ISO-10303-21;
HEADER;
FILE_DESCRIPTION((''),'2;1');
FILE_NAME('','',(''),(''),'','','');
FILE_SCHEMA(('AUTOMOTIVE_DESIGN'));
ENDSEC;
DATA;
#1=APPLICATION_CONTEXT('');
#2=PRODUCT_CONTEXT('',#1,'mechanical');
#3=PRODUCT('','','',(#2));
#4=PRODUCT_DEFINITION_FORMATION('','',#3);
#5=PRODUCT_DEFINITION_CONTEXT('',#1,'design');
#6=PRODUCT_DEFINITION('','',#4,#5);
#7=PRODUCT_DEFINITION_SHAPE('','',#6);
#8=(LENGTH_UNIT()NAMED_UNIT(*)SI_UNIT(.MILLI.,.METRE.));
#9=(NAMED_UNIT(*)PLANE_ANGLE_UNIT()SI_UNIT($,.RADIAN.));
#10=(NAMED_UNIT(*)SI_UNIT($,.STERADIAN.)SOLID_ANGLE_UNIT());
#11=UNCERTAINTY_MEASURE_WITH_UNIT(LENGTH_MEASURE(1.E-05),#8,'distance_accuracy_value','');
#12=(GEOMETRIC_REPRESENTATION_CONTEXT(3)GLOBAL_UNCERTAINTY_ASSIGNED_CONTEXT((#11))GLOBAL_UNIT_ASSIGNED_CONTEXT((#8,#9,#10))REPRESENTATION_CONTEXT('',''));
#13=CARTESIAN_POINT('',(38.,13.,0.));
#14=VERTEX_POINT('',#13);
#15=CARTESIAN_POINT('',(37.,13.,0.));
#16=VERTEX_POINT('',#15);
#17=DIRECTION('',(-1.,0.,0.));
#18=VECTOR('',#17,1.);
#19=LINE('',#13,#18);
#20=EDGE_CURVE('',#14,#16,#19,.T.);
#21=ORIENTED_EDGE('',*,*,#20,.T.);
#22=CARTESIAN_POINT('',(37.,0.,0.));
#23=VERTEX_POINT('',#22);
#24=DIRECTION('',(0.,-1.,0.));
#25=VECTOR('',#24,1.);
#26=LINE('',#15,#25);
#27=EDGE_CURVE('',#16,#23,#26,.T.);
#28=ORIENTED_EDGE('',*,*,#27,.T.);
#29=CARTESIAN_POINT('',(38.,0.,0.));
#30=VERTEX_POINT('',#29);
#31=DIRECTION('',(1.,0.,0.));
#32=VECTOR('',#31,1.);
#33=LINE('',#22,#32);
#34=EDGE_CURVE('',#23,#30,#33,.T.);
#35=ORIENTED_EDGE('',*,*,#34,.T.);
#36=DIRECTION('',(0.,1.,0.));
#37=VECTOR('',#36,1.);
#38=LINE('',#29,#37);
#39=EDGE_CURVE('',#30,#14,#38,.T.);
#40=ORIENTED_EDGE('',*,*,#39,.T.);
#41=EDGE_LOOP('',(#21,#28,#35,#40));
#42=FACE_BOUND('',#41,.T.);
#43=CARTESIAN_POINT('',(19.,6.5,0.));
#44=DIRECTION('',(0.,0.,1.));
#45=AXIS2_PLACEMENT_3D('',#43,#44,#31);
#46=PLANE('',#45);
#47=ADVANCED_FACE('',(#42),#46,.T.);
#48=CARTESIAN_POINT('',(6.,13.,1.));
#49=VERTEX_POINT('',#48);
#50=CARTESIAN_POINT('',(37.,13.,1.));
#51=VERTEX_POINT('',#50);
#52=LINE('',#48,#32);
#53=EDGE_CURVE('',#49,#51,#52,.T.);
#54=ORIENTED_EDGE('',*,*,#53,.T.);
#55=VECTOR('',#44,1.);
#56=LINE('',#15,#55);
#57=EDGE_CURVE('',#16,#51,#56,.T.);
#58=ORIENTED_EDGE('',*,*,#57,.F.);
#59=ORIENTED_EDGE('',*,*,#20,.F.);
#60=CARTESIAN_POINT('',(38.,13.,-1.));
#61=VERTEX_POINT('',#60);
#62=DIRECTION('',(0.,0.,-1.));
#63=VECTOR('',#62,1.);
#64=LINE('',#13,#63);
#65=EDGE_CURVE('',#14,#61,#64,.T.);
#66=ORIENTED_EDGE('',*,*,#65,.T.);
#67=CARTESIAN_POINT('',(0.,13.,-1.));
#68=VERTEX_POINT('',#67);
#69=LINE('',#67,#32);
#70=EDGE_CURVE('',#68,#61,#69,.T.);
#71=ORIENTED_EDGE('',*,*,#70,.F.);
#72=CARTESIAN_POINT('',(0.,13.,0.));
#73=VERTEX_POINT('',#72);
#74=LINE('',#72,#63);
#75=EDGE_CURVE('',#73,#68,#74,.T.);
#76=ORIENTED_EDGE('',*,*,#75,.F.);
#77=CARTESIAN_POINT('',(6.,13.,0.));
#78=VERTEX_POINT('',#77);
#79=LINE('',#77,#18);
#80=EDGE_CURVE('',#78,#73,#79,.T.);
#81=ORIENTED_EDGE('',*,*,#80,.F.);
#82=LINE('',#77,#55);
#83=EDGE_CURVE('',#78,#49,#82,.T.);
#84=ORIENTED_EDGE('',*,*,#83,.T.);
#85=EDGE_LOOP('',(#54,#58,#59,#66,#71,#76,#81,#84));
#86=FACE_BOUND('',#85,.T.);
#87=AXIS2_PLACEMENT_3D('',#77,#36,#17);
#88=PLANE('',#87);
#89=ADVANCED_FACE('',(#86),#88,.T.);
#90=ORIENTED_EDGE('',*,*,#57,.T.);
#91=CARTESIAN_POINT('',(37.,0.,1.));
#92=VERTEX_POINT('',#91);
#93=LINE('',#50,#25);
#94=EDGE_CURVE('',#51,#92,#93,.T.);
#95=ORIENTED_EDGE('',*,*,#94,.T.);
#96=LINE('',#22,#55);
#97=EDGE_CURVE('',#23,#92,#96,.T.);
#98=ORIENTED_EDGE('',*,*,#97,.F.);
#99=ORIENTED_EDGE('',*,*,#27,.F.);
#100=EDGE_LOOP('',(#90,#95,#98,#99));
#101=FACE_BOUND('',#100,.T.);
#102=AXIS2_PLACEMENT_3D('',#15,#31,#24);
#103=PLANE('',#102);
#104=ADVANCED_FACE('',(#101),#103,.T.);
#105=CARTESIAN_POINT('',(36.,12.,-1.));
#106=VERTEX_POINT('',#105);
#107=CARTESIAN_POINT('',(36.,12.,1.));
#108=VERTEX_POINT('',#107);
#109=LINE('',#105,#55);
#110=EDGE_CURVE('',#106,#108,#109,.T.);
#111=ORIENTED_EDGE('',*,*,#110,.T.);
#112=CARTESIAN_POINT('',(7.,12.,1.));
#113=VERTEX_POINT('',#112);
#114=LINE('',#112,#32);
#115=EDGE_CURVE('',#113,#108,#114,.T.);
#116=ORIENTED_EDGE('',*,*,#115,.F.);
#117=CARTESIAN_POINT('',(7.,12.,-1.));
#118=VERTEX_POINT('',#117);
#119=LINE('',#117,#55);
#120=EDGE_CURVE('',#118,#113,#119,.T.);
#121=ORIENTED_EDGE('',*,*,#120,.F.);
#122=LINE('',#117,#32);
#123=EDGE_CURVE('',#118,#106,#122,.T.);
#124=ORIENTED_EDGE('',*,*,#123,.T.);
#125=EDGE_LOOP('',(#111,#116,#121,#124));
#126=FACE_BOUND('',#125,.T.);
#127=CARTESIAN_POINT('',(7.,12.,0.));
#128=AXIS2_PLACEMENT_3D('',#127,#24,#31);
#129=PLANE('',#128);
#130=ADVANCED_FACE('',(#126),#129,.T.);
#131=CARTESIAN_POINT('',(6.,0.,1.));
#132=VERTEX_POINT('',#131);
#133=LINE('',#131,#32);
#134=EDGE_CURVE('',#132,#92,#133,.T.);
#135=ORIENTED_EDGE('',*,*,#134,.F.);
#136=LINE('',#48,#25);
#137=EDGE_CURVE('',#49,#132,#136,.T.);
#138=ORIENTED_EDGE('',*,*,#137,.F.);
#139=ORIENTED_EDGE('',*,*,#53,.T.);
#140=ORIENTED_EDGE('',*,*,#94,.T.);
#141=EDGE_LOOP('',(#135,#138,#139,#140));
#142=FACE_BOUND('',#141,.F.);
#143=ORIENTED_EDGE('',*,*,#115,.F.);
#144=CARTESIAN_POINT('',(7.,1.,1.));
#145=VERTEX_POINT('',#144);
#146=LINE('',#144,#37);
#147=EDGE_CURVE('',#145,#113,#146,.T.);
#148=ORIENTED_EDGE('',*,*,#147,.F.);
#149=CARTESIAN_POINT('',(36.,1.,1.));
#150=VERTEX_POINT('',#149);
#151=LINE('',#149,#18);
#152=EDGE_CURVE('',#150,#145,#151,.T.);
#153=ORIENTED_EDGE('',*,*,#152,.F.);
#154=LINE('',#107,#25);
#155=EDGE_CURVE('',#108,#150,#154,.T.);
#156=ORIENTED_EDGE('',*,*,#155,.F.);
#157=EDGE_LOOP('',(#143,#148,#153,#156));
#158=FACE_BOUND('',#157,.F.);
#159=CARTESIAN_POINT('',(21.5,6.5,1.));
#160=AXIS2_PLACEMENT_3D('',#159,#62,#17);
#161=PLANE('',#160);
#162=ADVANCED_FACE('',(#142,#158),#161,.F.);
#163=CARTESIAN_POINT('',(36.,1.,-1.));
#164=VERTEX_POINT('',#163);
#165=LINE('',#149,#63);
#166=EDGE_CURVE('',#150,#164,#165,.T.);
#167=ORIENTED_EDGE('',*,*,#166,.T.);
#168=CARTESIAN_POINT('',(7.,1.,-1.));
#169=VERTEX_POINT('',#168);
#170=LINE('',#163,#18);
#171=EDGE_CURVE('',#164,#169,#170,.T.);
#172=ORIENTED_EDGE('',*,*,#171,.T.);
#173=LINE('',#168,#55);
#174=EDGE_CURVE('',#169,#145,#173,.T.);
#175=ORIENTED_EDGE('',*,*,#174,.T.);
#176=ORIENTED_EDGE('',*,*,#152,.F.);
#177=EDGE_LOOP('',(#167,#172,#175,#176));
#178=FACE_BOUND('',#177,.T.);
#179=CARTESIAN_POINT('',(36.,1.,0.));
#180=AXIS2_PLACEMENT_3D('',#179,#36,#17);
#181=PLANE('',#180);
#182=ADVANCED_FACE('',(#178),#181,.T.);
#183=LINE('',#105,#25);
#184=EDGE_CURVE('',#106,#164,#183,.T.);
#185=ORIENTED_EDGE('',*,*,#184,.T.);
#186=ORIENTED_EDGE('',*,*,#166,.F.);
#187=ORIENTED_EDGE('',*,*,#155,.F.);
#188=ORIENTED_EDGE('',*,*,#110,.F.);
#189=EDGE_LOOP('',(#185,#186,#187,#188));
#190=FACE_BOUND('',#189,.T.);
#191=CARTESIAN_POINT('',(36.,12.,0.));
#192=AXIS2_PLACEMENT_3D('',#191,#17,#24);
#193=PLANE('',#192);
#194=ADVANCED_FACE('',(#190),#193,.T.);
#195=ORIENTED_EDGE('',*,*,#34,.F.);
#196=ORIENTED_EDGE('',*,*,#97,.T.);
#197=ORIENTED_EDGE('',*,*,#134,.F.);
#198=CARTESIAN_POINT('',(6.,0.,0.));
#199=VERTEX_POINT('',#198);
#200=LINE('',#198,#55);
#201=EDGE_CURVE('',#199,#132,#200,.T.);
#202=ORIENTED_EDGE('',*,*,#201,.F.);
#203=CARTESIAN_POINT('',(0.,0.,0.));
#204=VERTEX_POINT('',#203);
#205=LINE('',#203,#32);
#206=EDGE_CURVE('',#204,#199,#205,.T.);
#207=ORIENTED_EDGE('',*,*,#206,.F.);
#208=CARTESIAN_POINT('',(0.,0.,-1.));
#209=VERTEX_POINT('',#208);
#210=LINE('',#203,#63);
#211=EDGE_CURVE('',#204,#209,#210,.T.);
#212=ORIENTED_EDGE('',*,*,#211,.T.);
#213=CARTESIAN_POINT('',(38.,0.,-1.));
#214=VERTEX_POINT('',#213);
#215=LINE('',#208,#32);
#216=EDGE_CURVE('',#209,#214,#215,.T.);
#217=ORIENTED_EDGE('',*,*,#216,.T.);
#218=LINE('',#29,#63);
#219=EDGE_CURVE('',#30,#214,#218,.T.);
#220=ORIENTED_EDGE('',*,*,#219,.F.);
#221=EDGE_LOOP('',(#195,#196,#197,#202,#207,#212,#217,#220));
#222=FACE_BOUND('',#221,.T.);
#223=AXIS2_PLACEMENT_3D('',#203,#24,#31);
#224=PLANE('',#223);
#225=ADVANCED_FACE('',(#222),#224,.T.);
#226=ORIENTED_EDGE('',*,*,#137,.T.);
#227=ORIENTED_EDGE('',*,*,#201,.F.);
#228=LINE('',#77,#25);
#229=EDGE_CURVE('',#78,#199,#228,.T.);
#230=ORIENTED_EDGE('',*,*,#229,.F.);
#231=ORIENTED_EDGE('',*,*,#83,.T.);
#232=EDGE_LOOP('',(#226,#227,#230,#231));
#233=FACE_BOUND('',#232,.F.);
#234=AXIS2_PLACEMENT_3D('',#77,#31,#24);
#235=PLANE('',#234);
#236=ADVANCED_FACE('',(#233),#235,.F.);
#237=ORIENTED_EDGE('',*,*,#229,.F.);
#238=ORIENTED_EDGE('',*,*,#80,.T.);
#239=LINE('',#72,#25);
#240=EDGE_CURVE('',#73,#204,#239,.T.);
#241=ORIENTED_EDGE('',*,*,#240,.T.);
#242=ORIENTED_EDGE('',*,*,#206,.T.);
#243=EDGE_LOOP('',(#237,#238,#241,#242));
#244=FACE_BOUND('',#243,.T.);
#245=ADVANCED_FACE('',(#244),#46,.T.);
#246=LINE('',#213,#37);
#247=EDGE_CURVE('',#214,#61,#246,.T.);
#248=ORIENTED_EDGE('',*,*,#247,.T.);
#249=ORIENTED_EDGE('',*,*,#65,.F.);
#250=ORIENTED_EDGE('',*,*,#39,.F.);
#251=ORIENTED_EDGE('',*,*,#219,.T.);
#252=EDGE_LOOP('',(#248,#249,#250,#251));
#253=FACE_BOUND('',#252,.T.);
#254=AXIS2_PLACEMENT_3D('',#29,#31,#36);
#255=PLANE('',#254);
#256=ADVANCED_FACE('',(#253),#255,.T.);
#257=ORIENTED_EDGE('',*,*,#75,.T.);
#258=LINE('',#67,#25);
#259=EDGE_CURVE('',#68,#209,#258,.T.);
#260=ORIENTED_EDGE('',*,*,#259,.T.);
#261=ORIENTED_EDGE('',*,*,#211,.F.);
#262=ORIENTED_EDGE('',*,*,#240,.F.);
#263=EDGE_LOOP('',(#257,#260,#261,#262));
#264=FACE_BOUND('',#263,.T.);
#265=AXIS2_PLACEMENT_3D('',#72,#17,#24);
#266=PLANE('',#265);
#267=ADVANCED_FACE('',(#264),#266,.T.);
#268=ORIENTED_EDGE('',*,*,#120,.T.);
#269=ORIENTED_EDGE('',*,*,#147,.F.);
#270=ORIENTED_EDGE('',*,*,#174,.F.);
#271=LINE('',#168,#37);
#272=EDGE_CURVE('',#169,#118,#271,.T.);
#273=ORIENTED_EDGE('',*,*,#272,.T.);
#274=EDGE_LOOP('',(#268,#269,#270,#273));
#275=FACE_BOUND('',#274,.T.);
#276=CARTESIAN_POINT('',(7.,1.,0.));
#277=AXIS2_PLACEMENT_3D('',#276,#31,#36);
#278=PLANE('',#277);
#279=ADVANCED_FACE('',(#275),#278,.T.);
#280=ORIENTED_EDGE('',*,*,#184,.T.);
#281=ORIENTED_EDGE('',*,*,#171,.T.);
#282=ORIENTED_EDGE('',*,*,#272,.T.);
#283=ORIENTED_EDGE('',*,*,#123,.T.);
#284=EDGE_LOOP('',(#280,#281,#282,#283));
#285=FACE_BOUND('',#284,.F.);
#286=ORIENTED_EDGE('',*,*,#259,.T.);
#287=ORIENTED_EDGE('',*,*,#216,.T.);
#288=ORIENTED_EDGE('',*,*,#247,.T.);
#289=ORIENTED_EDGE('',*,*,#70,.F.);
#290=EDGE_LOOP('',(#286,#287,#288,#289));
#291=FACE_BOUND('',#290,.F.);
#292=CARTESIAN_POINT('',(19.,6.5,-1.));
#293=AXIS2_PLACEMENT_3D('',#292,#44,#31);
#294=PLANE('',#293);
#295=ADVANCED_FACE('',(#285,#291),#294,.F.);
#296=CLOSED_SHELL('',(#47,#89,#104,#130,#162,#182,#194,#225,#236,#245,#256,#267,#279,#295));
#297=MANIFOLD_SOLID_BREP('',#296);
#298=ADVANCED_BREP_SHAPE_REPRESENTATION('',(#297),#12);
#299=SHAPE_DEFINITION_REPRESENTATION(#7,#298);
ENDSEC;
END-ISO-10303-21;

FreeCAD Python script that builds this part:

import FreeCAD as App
import Part
import Sketcher
from FreeCAD import Vector
Q = App.Units.Quantity


def add_polygon(sketch, points):
    """Adds a closed chain of lines whose ends are joined by coincident constraints."""
    first, n = sketch.GeometryCount, len(points)
    for a, b in zip(points, points[1:] + points[:1]):
        sketch.addGeometry(Part.LineSegment(App.Vector(*a, 0), App.Vector(*b, 0)), False)
    for i in range(n):
        sketch.addConstraint(Sketcher.Constraint("Coincident", first + i, 2, first + (i + 1) % n, 1))

doc = App.newDocument("Part")
body = doc.addObject("PartDesign::Body", "Body")

# Sketch on XY plane
sketch1 = body.newObject("Sketcher::SketchObject", "Sketch")
sketch1.AttachmentSupport = (doc.getObject("XY_Plane"), [""])
sketch1.MapMode = "FlatFace"
add_polygon(sketch1, [(0, 13), (0, 0), (38, 0), (38, 13)])  # lines 0-3
add_polygon(sketch1, [(36, 12), (36, 1), (7, 1), (7, 12)])  # lines 4-7
sketch1.addConstraint([
    Sketcher.Constraint("Vertical", 0),
    Sketcher.Constraint("Horizontal", 1),
    Sketcher.Constraint("Vertical", 2),
    Sketcher.Constraint("Horizontal", 3),
    Sketcher.Constraint("Vertical", 4),
    Sketcher.Constraint("Horizontal", 5),
    Sketcher.Constraint("Vertical", 6),
    Sketcher.Constraint("Horizontal", 7),
    Sketcher.Constraint("Coincident", 0, 2, -1, 1),
    Sketcher.Constraint("DistanceX", 1, 1, 1, 2, Q("38 mm")),
    Sketcher.Constraint("DistanceX", 5, 2, 5, 1, Q("29 mm")),
    Sketcher.Constraint("DistanceY", 0, 2, 0, 1, Q("13 mm")),
    Sketcher.Constraint("DistanceY", 4, 2, 4, 1, Q("11 mm")),
    Sketcher.Constraint("DistanceX", -1, 1, 4, 2, Q("36 mm")),
    Sketcher.Constraint("DistanceY", -1, 1, 4, 2, Q("1 mm")),
])
pad1 = body.newObject("PartDesign::Pad", "Pad")
pad1.Profile = sketch1
pad1.Length = 1
pad1.Reversed = True

# Sketch on XY plane
sketch2 = body.newObject("Sketcher::SketchObject", "Sketch001")
sketch2.AttachmentSupport = (doc.getObject("XY_Plane"), [""])
sketch2.MapMode = "FlatFace"
add_polygon(sketch2, [(37, 0), (37, 13), (6, 13), (6, 0)])  # lines 0-3
add_polygon(sketch2, [(7, 12), (36, 12), (36, 1), (7, 1)])  # lines 4-7
sketch2.addConstraint([
    Sketcher.Constraint("Vertical", 0),
    Sketcher.Constraint("Horizontal", 1),
    Sketcher.Constraint("Vertical", 2),
    Sketcher.Constraint("Horizontal", 3),
    Sketcher.Constraint("Horizontal", 4),
    Sketcher.Constraint("Vertical", 5),
    Sketcher.Constraint("Horizontal", 6),
    Sketcher.Constraint("Vertical", 7),
    Sketcher.Constraint("PointOnObject", 2, 2, -1),
    Sketcher.Constraint("DistanceX", 1, 2, 1, 1, Q("31 mm")),
    Sketcher.Constraint("DistanceX", 4, 1, 4, 2, Q("29 mm")),
    Sketcher.Constraint("DistanceY", 0, 1, 0, 2, Q("13 mm")),
    Sketcher.Constraint("DistanceY", 5, 2, 5, 1, Q("11 mm")),
    Sketcher.Constraint("DistanceX", -1, 1, 0, 2, Q("37 mm")),
    Sketcher.Constraint("DistanceX", -1, 1, 4, 2, Q("36 mm")),
    Sketcher.Constraint("DistanceY", -1, 1, 4, 2, Q("12 mm")),
])
pad2 = body.newObject("PartDesign::Pad", "Pad001")
pad2.Profile = sketch2
pad2.Length = 1

doc.recompute()
